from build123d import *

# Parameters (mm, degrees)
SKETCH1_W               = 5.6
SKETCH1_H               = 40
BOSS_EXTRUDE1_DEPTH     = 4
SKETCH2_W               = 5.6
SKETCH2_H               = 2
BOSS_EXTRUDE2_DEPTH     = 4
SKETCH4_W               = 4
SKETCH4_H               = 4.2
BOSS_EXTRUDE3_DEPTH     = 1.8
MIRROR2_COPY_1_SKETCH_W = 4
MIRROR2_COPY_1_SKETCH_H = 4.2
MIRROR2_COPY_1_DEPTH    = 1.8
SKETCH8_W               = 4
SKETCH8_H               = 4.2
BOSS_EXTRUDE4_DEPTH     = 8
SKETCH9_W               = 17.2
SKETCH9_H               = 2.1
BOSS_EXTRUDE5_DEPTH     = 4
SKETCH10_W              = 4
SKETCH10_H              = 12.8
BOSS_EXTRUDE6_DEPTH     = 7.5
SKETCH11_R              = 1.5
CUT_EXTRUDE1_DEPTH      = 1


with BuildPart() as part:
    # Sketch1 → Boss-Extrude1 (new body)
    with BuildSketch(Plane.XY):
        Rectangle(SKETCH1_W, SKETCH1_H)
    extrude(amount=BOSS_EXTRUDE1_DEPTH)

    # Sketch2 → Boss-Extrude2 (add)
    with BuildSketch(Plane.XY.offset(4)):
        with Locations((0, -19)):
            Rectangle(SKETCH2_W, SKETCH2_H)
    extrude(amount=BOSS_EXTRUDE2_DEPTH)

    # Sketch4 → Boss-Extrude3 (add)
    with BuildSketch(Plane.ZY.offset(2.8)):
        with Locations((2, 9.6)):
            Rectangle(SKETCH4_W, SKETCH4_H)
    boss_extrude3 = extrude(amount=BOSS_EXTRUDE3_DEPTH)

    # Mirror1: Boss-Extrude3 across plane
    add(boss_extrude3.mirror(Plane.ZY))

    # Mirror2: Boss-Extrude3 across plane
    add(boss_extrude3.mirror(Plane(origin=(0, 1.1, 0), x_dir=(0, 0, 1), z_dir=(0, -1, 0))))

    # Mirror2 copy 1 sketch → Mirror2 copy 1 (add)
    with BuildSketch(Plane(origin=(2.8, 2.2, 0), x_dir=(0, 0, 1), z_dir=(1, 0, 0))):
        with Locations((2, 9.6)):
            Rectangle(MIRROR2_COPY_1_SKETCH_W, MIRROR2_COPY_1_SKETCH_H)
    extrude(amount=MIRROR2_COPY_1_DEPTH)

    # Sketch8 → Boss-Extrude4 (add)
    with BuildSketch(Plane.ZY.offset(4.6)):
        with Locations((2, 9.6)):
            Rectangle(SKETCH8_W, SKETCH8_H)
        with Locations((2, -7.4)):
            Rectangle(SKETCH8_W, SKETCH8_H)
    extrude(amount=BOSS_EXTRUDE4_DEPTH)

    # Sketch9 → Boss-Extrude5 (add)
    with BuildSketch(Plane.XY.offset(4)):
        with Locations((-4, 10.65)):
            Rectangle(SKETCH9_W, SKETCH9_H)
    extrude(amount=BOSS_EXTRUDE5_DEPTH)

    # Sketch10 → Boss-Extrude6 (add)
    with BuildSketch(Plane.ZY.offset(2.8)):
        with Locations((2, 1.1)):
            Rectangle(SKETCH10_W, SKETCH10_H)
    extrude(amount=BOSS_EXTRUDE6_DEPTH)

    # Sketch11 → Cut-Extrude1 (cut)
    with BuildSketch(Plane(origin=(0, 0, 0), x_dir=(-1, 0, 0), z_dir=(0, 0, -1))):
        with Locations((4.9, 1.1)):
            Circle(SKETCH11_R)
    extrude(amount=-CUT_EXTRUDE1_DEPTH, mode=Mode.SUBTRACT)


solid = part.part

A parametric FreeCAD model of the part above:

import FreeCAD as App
import Part
import Sketcher

doc = App.newDocument("Part")
body = doc.addObject("PartDesign::Body", "Body")

sketch1 = body.newObject("Sketcher::SketchObject", "Sketch")
sketch1.AttachmentSupport = (doc.getObject("XY_Plane"), [""])
sketch1.MapMode = "FlatFace"
sketch1.addGeometry([
    Part.LineSegment(App.Vector(-3, 20, 0), App.Vector(-3, -20, 0)),
    Part.LineSegment(App.Vector(-3, -20, 0), App.Vector(3, -20, 0)),
    Part.LineSegment(App.Vector(3, -20, 0), App.Vector(3, 20, 0)),
    Part.LineSegment(App.Vector(3, 20, 0), App.Vector(-3, 20, 0)),
], False)
sketch1.addConstraint([
    Sketcher.Constraint("Coincident", 0, 2, 1, 1),
    Sketcher.Constraint("Coincident", 1, 2, 2, 1),
    Sketcher.Constraint("Coincident", 2, 2, 3, 1),
    Sketcher.Constraint("Coincident", 3, 2, 0, 1),
    Sketcher.Constraint("Vertical", 0),
    Sketcher.Constraint("Horizontal", 1),
    Sketcher.Constraint("Vertical", 2),
    Sketcher.Constraint("Horizontal", 3),
    Sketcher.Constraint("Symmetric", 0, 2, 2, 2, -1, 1),
    Sketcher.Constraint("DistanceY", 0, 2, 0, 1, 40.0),
    Sketcher.Constraint("DistanceX", 1, 1, 1, 2, 5.6),
])
pad1 = body.newObject("PartDesign::Pad", "Pad")
pad1.Profile = sketch1
pad1.Length = 4

sketch2 = body.newObject("Sketcher::SketchObject", "Sketch001")
sketch2.AttachmentSupport = (doc.getObject("XY_Plane"), [""])
sketch2.MapMode = "FlatFace"
sketch2.AttachmentOffset = App.Placement(App.Vector(0, 0, 4), App.Rotation())
sketch2.addGeometry([
    Part.LineSegment(App.Vector(-2.8, -18, 0), App.Vector(-2.8, -20, 0)),
    Part.LineSegment(App.Vector(-2.8, -20, 0), App.Vector(2.8, -20, 0)),
    Part.LineSegment(App.Vector(2.8, -20, 0), App.Vector(2.8, -18, 0)),
    Part.LineSegment(App.Vector(2.8, -18, 0), App.Vector(-2.8, -18, 0)),
], False)
sketch2.addConstraint([
    Sketcher.Constraint("Coincident", 0, 2, 1, 1),
    Sketcher.Constraint("Coincident", 1, 2, 2, 1),
    Sketcher.Constraint("Coincident", 2, 2, 3, 1),
    Sketcher.Constraint("Coincident", 3, 2, 0, 1),
    Sketcher.Constraint("Vertical", 0),
    Sketcher.Constraint("Horizontal", 1),
    Sketcher.Constraint("Vertical", 2),
    Sketcher.Constraint("Horizontal", 3),
    Sketcher.Constraint("DistanceY", 0, 2, 0, 1, 2.0),
    Sketcher.Constraint("DistanceX", 1, 1, 1, 2, 5.6),
    Sketcher.Constraint("DistanceY", 0, 2, -1, 1, 20.0),
    Sketcher.Constraint("DistanceX", 0, 2, -1, 1, 2.8),
])
pad2 = body.newObject("PartDesign::Pad", "Pad001")
pad2.Profile = sketch2
pad2.Length = 4

sketch3 = body.newObject("Sketcher::SketchObject", "Sketch002")
sketch3.AttachmentSupport = (doc.getObject("YZ_Plane"), [""])
sketch3.MapMode = "FlatFace"
sketch3.AttachmentOffset = App.Placement(App.Vector(0, 0, -2.8), App.Rotation())
sketch3.addGeometry([
    Part.LineSegment(App.Vector(11.7, 0, 0), App.Vector(7.5, 0, 0)),
    Part.LineSegment(App.Vector(7.5, 0, 0), App.Vector(7.5, 4, 0)),
    Part.LineSegment(App.Vector(7.5, 4, 0), App.Vector(11.7, 4, 0)),
    Part.LineSegment(App.Vector(11.7, 4, 0), App.Vector(11.7, 0, 0)),
], False)
sketch3.addConstraint([
    Sketcher.Constraint("Coincident", 0, 2, 1, 1),
    Sketcher.Constraint("Coincident", 1, 2, 2, 1),
    Sketcher.Constraint("Coincident", 2, 2, 3, 1),
    Sketcher.Constraint("Coincident", 3, 2, 0, 1),
    Sketcher.Constraint("Horizontal", 0),
    Sketcher.Constraint("Vertical", 1),
    Sketcher.Constraint("Horizontal", 2),
    Sketcher.Constraint("Vertical", 3),
    Sketcher.Constraint("PointOnObject", 0, 2, -1),
    Sketcher.Constraint("DistanceY", 1, 1, 1, 2, 4.0),
    Sketcher.Constraint("DistanceX", 0, 2, 0, 1, 4.2),
    Sketcher.Constraint("DistanceX", -1, 1, 0, 2, 7.5),
])
pad3 = body.newObject("PartDesign::Pad", "Pad002")
pad3.Profile = sketch3
pad3.Length = 1.8
pad3.Reversed = True
doc.recompute()

mirrored = body.newObject("PartDesign::Mirrored", "Mirrored")
mirrored.Originals = [pad3]
mirrored.MirrorPlane = (doc.getObject("YZ_Plane"), [""])
body.Tip = mirrored
doc.recompute()

datumplane = body.newObject("PartDesign::Plane", "DatumPlane")
datumplane.AttachmentSupport = (doc.getObject("XZ_Plane"), [""])
datumplane.MapMode = "FlatFace"
datumplane.AttachmentOffset = App.Placement(App.Vector(0, 0, -1.1), App.Rotation())
mirrored2 = body.newObject("PartDesign::Mirrored", "Mirrored001")
mirrored2.Originals = [pad3]
mirrored2.MirrorPlane = (datumplane, [""])
body.Tip = mirrored2

sketch4 = body.newObject("Sketcher::SketchObject", "Sketch003")
sketch4.AttachmentSupport = (doc.getObject("YZ_Plane"), [""])
sketch4.MapMode = "FlatFace"
sketch4.AttachmentOffset = App.Placement(App.Vector(0, 0, 2.8), App.Rotation())
sketch4.addGeometry([
    Part.LineSegment(App.Vector(-9.5, 0, 0), App.Vector(-5.3, 0, 0)),
    Part.LineSegment(App.Vector(-5.3, 0, 0), App.Vector(-5.3, 4, 0)),
    Part.LineSegment(App.Vector(-5.3, 4, 0), App.Vector(-9.5, 4, 0)),
    Part.LineSegment(App.Vector(-9.5, 4, 0), App.Vector(-9.5, 0, 0)),
], False)
sketch4.addConstraint([
    Sketcher.Constraint("Coincident", 0, 2, 1, 1),
    Sketcher.Constraint("Coincident", 1, 2, 2, 1),
    Sketcher.Constraint("Coincident", 2, 2, 3, 1),
    Sketcher.Constraint("Coincident", 3, 2, 0, 1),
    Sketcher.Constraint("Horizontal", 0),
    Sketcher.Constraint("Vertical", 1),
    Sketcher.Constraint("Horizontal", 2),
    Sketcher.Constraint("Vertical", 3),
    Sketcher.Constraint("PointOnObject", 0, 2, -1),
    Sketcher.Constraint("DistanceY", 1, 1, 1, 2, 4.0),
    Sketcher.Constraint("DistanceX", 0, 1, 0, 2, 4.2),
    Sketcher.Constraint("DistanceX", 0, 2, -1, 1, 5.3),
])
pad4 = body.newObject("PartDesign::Pad", "Pad003")
pad4.Profile = sketch4
pad4.Length = 1.8

sketch5 = body.newObject("Sketcher::SketchObject", "Sketch004")
sketch5.AttachmentSupport = (doc.getObject("YZ_Plane"), [""])
sketch5.MapMode = "FlatFace"
sketch5.AttachmentOffset = App.Placement(App.Vector(0, 0, -4.6), App.Rotation())
sketch5.addGeometry([
    Part.LineSegment(App.Vector(11.7, 0, 0), App.Vector(7.5, 0, 0)),
    Part.LineSegment(App.Vector(7.5, 0, 0), App.Vector(7.5, 4, 0)),
    Part.LineSegment(App.Vector(7.5, 4, 0), App.Vector(11.7, 4, 0)),
    Part.LineSegment(App.Vector(11.7, 4, 0), App.Vector(11.7, 0, 0)),
    Part.LineSegment(App.Vector(-5.3, 0, 0), App.Vector(-9.5, 0, 0)),
    Part.LineSegment(App.Vector(-9.5, 0, 0), App.Vector(-9.5, 4, 0)),
    Part.LineSegment(App.Vector(-9.5, 4, 0), App.Vector(-5.3, 4, 0)),
    Part.LineSegment(App.Vector(-5.3, 4, 0), App.Vector(-5.3, 0, 0)),
], False)
sketch5.addConstraint([
    Sketcher.Constraint("Coincident", 0, 2, 1, 1),
    Sketcher.Constraint("Coincident", 1, 2, 2, 1),
    Sketcher.Constraint("Coincident", 2, 2, 3, 1),
    Sketcher.Constraint("Coincident", 3, 2, 0, 1),
    Sketcher.Constraint("Coincident", 4, 2, 5, 1),
    Sketcher.Constraint("Coincident", 5, 2, 6, 1),
    Sketcher.Constraint("Coincident", 6, 2, 7, 1),
    Sketcher.Constraint("Coincident", 7, 2, 4, 1),
    Sketcher.Constraint("Horizontal", 0),
    Sketcher.Constraint("Vertical", 1),
    Sketcher.Constraint("Horizontal", 2),
    Sketcher.Constraint("Vertical", 3),
    Sketcher.Constraint("Horizontal", 4),
    Sketcher.Constraint("Vertical", 5),
    Sketcher.Constraint("Horizontal", 6),
    Sketcher.Constraint("Vertical", 7),
    Sketcher.Constraint("PointOnObject", 0, 2, -1),
    Sketcher.Constraint("PointOnObject", 4, 2, -1),
    Sketcher.Constraint("Horizontal", 2, 2, 5, 2),
    Sketcher.Constraint("Equal", 2, 4),
    Sketcher.Constraint("DistanceY", 1, 1, 1, 2, 4.0),
    Sketcher.Constraint("DistanceX", 0, 2, 0, 1, 4.2),
    Sketcher.Constraint("DistanceX", 4, 2, 0, 2, 17.0),
    Sketcher.Constraint("DistanceX", -1, 1, 0, 2, 7.5),
])
pad5 = body.newObject("PartDesign::Pad", "Pad004")
pad5.Profile = sketch5
pad5.Length = 8
pad5.Reversed = True

sketch6 = body.newObject("Sketcher::SketchObject", "Sketch005")
sketch6.AttachmentSupport = (doc.getObject("XY_Plane"), [""])
sketch6.MapMode = "FlatFace"
sketch6.AttachmentOffset = App.Placement(App.Vector(0, 0, 4), App.Rotation())
sketch6.addGeometry([
    Part.LineSegment(App.Vector(-12.6, 11.7, 0), App.Vector(-12.6, 9.6, 0)),
    Part.LineSegment(App.Vector(-12.6, 9.6, 0), App.Vector(4.6, 9.6, 0)),
    Part.LineSegment(App.Vector(4.6, 9.6, 0), App.Vector(4.6, 11.7, 0)),
    Part.LineSegment(App.Vector(4.6, 11.7, 0), App.Vector(-12.6, 11.7, 0)),
], False)
sketch6.addConstraint([
    Sketcher.Constraint("Coincident", 0, 2, 1, 1),
    Sketcher.Constraint("Coincident", 1, 2, 2, 1),
    Sketcher.Constraint("Coincident", 2, 2, 3, 1),
    Sketcher.Constraint("Coincident", 3, 2, 0, 1),
    Sketcher.Constraint("Vertical", 0),
    Sketcher.Constraint("Horizontal", 1),
    Sketcher.Constraint("Vertical", 2),
    Sketcher.Constraint("Horizontal", 3),
    Sketcher.Constraint("DistanceX", 1, 1, 1, 2, 17.2),
    Sketcher.Constraint("DistanceY", 0, 2, 0, 1, 2.1),
    Sketcher.Constraint("DistanceX", 0, 2, -1, 1, 12.6),
    Sketcher.Constraint("DistanceY", -1, 1, 0, 2, 9.6),
])
pad6 = body.newObject("PartDesign::Pad", "Pad005")
pad6.Profile = sketch6
pad6.Length = 4

sketch7 = body.newObject("Sketcher::SketchObject", "Sketch006")
sketch7.AttachmentSupport = (doc.getObject("YZ_Plane"), [""])
sketch7.MapMode = "FlatFace"
sketch7.AttachmentOffset = App.Placement(App.Vector(0, 0, -2.8), App.Rotation())
sketch7.addGeometry([
    Part.LineSegment(App.Vector(7.5, 0, 0), App.Vector(-5.3, 0, 0)),
    Part.LineSegment(App.Vector(-5.3, 0, 0), App.Vector(-5.3, 4, 0)),
    Part.LineSegment(App.Vector(-5.3, 4, 0), App.Vector(7.5, 4, 0)),
    Part.LineSegment(App.Vector(7.5, 4, 0), App.Vector(7.5, 0, 0)),
], False)
sketch7.addConstraint([
    Sketcher.Constraint("Coincident", 0, 2, 1, 1),
    Sketcher.Constraint("Coincident", 1, 2, 2, 1),
    Sketcher.Constraint("Coincident", 2, 2, 3, 1),
    Sketcher.Constraint("Coincident", 3, 2, 0, 1),
    Sketcher.Constraint("Horizontal", 0),
    Sketcher.Constraint("Vertical", 1),
    Sketcher.Constraint("Horizontal", 2),
    Sketcher.Constraint("Vertical", 3),
    Sketcher.Constraint("PointOnObject", 0, 2, -1),
    Sketcher.Constraint("DistanceY", 1, 1, 1, 2, 4.0),
    Sketcher.Constraint("DistanceX", 0, 2, 0, 1, 12.8),
    Sketcher.Constraint("DistanceX", 0, 2, -1, 1, 5.3),
])
pad7 = body.newObject("PartDesign::Pad", "Pad006")
pad7.Profile = sketch7
pad7.Length = 7.5
pad7.Reversed = True

sketch8 = body.newObject("Sketcher::SketchObject", "Sketch007")
sketch8.AttachmentSupport = (doc.getObject("XY_Plane"), [""])
sketch8.MapMode = "FlatFace"
sketch8.addGeometry(Part.Circle(App.Vector(-4.9, 1.1, 0), App.Vector(0, 0, 1), 1.5), False)
sketch8.addConstraint([
    Sketcher.Constraint("Diameter", 0, 3.0),
    Sketcher.Constraint("DistanceX", 0, 3, -1, 1, 4.9),
    Sketcher.Constraint("DistanceY", -1, 1, 0, 3, 1.1),
])
pocket1 = body.newObject("PartDesign::Pocket", "Pocket")
pocket1.Profile = sketch8
pocket1.Length = 1
pocket1.Reversed = True

doc.recompute()
